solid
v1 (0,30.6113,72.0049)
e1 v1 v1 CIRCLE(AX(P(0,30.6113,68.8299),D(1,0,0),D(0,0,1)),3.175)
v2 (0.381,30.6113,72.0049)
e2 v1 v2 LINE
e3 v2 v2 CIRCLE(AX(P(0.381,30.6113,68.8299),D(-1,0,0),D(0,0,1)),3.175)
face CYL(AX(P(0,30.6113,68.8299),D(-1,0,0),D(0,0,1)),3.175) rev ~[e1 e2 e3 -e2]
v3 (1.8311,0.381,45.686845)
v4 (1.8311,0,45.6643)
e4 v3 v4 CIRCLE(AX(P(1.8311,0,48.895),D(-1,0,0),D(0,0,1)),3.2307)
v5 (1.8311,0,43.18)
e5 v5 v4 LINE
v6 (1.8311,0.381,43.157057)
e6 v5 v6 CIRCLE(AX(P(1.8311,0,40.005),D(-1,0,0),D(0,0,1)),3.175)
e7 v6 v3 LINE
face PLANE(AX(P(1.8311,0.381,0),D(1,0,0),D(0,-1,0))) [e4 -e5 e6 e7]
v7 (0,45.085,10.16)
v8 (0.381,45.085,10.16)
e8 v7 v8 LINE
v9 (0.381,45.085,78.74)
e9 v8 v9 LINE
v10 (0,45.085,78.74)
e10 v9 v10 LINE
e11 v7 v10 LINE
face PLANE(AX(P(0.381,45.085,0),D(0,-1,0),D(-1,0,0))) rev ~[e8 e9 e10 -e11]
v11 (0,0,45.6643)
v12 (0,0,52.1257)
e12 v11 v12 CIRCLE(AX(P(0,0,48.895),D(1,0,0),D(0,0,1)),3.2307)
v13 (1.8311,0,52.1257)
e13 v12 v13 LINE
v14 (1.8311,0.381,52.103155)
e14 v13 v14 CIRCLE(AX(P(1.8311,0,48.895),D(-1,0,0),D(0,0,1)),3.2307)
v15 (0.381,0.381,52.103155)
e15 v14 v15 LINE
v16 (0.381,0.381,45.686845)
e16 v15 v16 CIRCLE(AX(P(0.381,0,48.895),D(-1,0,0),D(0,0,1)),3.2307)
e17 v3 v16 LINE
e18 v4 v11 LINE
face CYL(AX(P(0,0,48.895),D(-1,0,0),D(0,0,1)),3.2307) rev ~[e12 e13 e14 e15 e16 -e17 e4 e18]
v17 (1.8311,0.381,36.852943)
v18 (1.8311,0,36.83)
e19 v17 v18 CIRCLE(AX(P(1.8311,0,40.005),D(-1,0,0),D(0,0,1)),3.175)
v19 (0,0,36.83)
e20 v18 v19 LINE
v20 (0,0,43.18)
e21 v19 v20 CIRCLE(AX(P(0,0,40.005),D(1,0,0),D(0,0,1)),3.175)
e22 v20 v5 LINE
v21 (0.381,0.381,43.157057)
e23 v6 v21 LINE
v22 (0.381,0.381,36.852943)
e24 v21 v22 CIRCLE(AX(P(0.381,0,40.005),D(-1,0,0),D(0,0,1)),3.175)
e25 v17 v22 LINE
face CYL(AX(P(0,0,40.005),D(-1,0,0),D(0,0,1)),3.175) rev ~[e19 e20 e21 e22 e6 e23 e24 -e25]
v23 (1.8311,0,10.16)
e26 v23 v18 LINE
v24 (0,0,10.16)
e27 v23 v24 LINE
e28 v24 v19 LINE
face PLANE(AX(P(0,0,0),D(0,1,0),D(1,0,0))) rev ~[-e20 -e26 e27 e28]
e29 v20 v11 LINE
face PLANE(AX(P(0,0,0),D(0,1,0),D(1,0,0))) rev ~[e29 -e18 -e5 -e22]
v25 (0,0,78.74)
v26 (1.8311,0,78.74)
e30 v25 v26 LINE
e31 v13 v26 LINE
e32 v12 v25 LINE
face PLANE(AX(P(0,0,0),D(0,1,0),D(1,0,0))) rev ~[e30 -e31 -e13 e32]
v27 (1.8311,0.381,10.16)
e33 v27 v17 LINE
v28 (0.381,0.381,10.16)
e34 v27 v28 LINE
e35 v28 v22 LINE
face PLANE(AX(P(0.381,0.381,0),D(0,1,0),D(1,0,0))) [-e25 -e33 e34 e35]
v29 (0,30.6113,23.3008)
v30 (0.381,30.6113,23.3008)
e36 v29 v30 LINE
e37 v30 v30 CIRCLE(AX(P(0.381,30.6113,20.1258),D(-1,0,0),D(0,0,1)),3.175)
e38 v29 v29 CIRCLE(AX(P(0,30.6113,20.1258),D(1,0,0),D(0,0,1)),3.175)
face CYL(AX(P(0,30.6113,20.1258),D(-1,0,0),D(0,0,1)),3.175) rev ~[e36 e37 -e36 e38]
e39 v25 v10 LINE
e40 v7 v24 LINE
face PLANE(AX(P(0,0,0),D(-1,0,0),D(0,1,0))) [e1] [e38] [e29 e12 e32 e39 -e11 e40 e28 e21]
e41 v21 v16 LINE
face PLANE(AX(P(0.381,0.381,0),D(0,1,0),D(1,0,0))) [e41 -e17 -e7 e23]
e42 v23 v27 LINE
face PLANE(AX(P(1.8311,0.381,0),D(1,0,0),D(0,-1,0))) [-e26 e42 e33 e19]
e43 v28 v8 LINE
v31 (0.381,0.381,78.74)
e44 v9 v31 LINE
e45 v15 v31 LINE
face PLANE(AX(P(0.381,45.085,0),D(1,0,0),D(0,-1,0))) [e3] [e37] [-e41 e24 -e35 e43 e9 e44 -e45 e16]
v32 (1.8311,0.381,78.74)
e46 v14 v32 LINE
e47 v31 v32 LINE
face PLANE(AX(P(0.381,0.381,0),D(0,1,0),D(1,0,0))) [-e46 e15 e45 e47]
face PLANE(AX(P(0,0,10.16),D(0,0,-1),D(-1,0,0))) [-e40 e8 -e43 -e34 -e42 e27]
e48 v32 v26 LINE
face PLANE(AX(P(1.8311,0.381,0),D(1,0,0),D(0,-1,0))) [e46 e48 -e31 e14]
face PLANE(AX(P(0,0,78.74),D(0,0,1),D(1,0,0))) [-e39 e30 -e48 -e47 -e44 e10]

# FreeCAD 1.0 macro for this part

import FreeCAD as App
import Part
import Sketcher
from FreeCAD import Vector
Q = App.Units.Quantity


def edges_at(feature, points):
    """Names of the edges that pass closest to the given points."""
    edges = feature.Shape.Edges
    near = lambda p: min(range(len(edges)), key=lambda i: edges[i].distToShape(Part.Vertex(*p))[0])
    return sorted({f"Edge{near(p) + 1}" for p in points})


def add_polygon(sketch, points):
    """Adds a closed chain of lines whose ends are joined by coincident constraints."""
    first, n = sketch.GeometryCount, len(points)
    for a, b in zip(points, points[1:] + points[:1]):
        sketch.addGeometry(Part.LineSegment(App.Vector(*a, 0), App.Vector(*b, 0)), False)
    for i in range(n):
        sketch.addConstraint(Sketcher.Constraint("Coincident", first + i, 2, first + (i + 1) % n, 1))

doc = App.newDocument("Part")
body = doc.addObject("PartDesign::Body", "Body")

# Sketch on XY plane
sketch1 = body.newObject("Sketcher::SketchObject", "Sketch")
sketch1.AttachmentSupport = (doc.getObject("XY_Plane"), [""])
sketch1.MapMode = "FlatFace"
add_polygon(sketch1, [(0, 45.09), (0, 0), (1.83, 0), (1.83, 0.38), (0.38, 0.38), (0.38, 45.09)])  # lines 0-5
sketch1.addConstraint([
    Sketcher.Constraint("Vertical", 0),
    Sketcher.Constraint("Horizontal", 1),
    Sketcher.Constraint("Vertical", 2),
    Sketcher.Constraint("Horizontal", 3),
    Sketcher.Constraint("Vertical", 4),
    Sketcher.Constraint("Horizontal", 5),
    Sketcher.Constraint("Coincident", 0, 2, -1, 1),
    Sketcher.Constraint("Equal", 5, 2),
    Sketcher.Constraint("DistanceX", 5, 2, 5, 1, Q("0.015 in")),
    Sketcher.Constraint("DistanceY", 0, 2, 0, 1, Q("1.775 in")),
    Sketcher.Constraint("DistanceX", 1, 1, 1, 2, Q("0.0721 in")),
])
pad1 = body.newObject("PartDesign::Pad", "Pad")
pad1.Profile = sketch1
pad1.Length = Q("3.5 in")
doc.recompute()

fillet = body.newObject("PartDesign::Fillet", "Fillet")
fillet.Base = (pad1, edges_at(pad1, [(0.191, 45.085, 88.9), (0.191, 45.085, 0)]))
fillet.Radius = Q("0.1 in")

# Sketch on YZ plane
sketch2 = body.newObject("Sketcher::SketchObject", "Sketch001")
sketch2.AttachmentSupport = (doc.getObject("YZ_Plane"), [""])
sketch2.MapMode = "FlatFace"
sketch2.addGeometry([
    Part.Circle(Vector(0, 40, 0), Vector(0, 0, 1), 3.2),
    Part.Circle(Vector(0, 48.9, 0), Vector(0, 0, 1), 3.2),
], False)
sketch2.addConstraint([
    Sketcher.Constraint("PointOnObject", 0, 3, -2),
    Sketcher.Constraint("PointOnObject", 1, 3, -2),
    Sketcher.Constraint("Diameter", 0, Q("0.25 in")),
    Sketcher.Constraint("DistanceY", 0, 3, 1, 3, Q("0.35 in")),
    Sketcher.Constraint("DistanceY", -1, 1, 0, 3, Q("1.575 in")),
    Sketcher.Constraint("Diameter", 1, 6.4614),
])
pocket1 = body.newObject("PartDesign::Pocket", "Pocket")
pocket1.Profile = sketch2
pocket1.Length = Q("3.5 in")
pocket1.Reversed = True

# Sketch on YZ plane
sketch3 = body.newObject("Sketcher::SketchObject", "Sketch002")
sketch3.AttachmentSupport = (doc.getObject("YZ_Plane"), [""])
sketch3.MapMode = "FlatFace"
sketch3.addGeometry([
    Part.Circle(Vector(30.6, 20.1, 0), Vector(0, 0, 1), 3.2),
    Part.Circle(Vector(30.6, 68.8, 0), Vector(0, 0, 1), 3.2),
], False)
sketch3.addConstraint([
    Sketcher.Constraint("Equal", 0, 1),
    Sketcher.Constraint("Vertical", 0, 3, 1, 3),
    Sketcher.Constraint("Diameter", 0, Q("0.25 in")),
    Sketcher.Constraint("DistanceX", -1, 1, 0, 3, 30.6113),
    Sketcher.Constraint("DistanceY", -1, 1, 0, 3, 20.1258),
    Sketcher.Constraint("DistanceY", -1, 1, 1, 3, 68.83),
])
pocket2 = body.newObject("PartDesign::Pocket", "Pocket001")
pocket2.Profile = sketch3
pocket2.Length = Q("3.5 in")
pocket2.Reversed = True

# Sketch on XY plane
sketch4 = body.newObject("Sketcher::SketchObject", "Sketch003")
sketch4.AttachmentSupport = (doc.getObject("XY_Plane"), [""])
sketch4.MapMode = "FlatFace"
sketch4.AttachmentOffset = App.Placement(Vector(0, 0, 3.5 * 25.4), App.Rotation())
add_polygon(sketch4, [(16, 53), (-19, 53), (-19, -7), (16, -7)])  # lines 0-3
sketch4.addConstraint([
    Sketcher.Constraint("Horizontal", 0),
    Sketcher.Constraint("Vertical", 1),
    Sketcher.Constraint("Horizontal", 2),
    Sketcher.Constraint("Vertical", 3),
    Sketcher.Constraint("DistanceX", 0, 2, 0, 1, Q("1.3715 in")),
    Sketcher.Constraint("DistanceY", 1, 2, 1, 1, 59.6403),
    Sketcher.Constraint("DistanceX", 0, 2, -1, 1, 18.865),
    Sketcher.Constraint("DistanceY", -1, 1, 0, 2, 53.0436),
])
pocket3 = body.newObject("PartDesign::Pocket", "Pocket002")
pocket3.Profile = sketch4
pocket3.Length = Q("0.4 in")

# Sketch on XY plane
sketch5 = body.newObject("Sketcher::SketchObject", "Sketch004")
sketch5.AttachmentSupport = (doc.getObject("XY_Plane"), [""])
sketch5.MapMode = "FlatFace"
add_polygon(sketch5, [(-24, 81), (43, 81), (43, -34), (-24, -34)])  # lines 0-3
sketch5.addConstraint([
    Sketcher.Constraint("Horizontal", 0),
    Sketcher.Constraint("Vertical", 1),
    Sketcher.Constraint("Horizontal", 2),
    Sketcher.Constraint("Vertical", 3),
    Sketcher.Constraint("DistanceX", 0, 1, 0, 2, 66.6644),
    Sketcher.Constraint("DistanceY", 1, 2, 1, 1, 114.9283),
    Sketcher.Constraint("DistanceY", 1, 2, -1, 1, Q("1.3403 in")),
    Sketcher.Constraint("DistanceX", -1, 1, 0, 2, 43.1556),
])
pocket4 = body.newObject("PartDesign::Pocket", "Pocket003")
pocket4.Profile = sketch5
pocket4.Length = Q("0.4 in")
pocket4.Reversed = True

doc.recompute()
